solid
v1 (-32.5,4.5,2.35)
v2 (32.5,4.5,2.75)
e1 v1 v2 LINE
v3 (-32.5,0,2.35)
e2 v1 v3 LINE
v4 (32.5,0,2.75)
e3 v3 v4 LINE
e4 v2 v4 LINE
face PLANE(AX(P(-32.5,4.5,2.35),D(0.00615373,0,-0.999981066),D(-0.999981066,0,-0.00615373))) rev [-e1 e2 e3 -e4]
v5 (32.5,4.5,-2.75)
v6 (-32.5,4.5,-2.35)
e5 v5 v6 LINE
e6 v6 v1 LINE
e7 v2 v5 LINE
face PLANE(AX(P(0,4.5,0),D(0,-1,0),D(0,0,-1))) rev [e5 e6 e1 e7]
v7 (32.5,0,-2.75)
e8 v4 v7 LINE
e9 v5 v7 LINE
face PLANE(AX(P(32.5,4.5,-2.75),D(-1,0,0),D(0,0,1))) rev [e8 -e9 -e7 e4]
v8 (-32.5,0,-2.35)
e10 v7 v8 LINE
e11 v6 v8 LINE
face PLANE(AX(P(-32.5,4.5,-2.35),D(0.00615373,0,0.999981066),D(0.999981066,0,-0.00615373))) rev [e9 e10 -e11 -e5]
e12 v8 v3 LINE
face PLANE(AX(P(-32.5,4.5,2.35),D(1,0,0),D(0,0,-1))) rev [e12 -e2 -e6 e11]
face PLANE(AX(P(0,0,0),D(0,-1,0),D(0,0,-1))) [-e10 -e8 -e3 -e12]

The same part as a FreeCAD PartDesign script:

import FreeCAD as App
import Part
import Sketcher
Q = App.Units.Quantity


def add_polygon(sketch, points):
    """Adds a closed chain of lines whose ends are joined by coincident constraints."""
    first, n = sketch.GeometryCount, len(points)
    for a, b in zip(points, points[1:] + points[:1]):
        sketch.addGeometry(Part.LineSegment(App.Vector(*a, 0), App.Vector(*b, 0)), False)
    for i in range(n):
        sketch.addConstraint(Sketcher.Constraint("Coincident", first + i, 2, first + (i + 1) % n, 1))

doc = App.newDocument("Part")
body = doc.addObject("PartDesign::Body", "Body")

sketch1 = body.newObject("Sketcher::SketchObject", "Sketch")
sketch1.AttachmentSupport = (doc.getObject("XZ_Plane"), [""])
sketch1.MapMode = "FlatFace"
add_polygon(sketch1, [(-32.5, -2.4), (-32.5, 2.4), (32.5, 2.8), (32.5, -2.8)])
sketch1.addConstraint([
    Sketcher.Constraint("Vertical", 0),
    Sketcher.Constraint("Vertical", 2),
    Sketcher.Constraint("Equal", 1, 3),
    Sketcher.Constraint("DistanceY", 0, 1, 0, 2, Q("4.7 mm")),
    Sketcher.Constraint("DistanceY", 2, 2, 2, 1, Q("5.5 mm")),
    Sketcher.Constraint("DistanceX", 0, 2, 1, 2, Q("65 mm")),
    Sketcher.Constraint("DistanceX", 0, 2, -1, 1, Q("32.5 mm")),
    Sketcher.Constraint("DistanceY", -1, 1, 0, 2, Q("2.35 mm")),
])
pad1 = body.newObject("PartDesign::Pad", "Pad")
pad1.Profile = sketch1
pad1.Length = 4.5
pad1.Reversed = True

doc.recompute()
